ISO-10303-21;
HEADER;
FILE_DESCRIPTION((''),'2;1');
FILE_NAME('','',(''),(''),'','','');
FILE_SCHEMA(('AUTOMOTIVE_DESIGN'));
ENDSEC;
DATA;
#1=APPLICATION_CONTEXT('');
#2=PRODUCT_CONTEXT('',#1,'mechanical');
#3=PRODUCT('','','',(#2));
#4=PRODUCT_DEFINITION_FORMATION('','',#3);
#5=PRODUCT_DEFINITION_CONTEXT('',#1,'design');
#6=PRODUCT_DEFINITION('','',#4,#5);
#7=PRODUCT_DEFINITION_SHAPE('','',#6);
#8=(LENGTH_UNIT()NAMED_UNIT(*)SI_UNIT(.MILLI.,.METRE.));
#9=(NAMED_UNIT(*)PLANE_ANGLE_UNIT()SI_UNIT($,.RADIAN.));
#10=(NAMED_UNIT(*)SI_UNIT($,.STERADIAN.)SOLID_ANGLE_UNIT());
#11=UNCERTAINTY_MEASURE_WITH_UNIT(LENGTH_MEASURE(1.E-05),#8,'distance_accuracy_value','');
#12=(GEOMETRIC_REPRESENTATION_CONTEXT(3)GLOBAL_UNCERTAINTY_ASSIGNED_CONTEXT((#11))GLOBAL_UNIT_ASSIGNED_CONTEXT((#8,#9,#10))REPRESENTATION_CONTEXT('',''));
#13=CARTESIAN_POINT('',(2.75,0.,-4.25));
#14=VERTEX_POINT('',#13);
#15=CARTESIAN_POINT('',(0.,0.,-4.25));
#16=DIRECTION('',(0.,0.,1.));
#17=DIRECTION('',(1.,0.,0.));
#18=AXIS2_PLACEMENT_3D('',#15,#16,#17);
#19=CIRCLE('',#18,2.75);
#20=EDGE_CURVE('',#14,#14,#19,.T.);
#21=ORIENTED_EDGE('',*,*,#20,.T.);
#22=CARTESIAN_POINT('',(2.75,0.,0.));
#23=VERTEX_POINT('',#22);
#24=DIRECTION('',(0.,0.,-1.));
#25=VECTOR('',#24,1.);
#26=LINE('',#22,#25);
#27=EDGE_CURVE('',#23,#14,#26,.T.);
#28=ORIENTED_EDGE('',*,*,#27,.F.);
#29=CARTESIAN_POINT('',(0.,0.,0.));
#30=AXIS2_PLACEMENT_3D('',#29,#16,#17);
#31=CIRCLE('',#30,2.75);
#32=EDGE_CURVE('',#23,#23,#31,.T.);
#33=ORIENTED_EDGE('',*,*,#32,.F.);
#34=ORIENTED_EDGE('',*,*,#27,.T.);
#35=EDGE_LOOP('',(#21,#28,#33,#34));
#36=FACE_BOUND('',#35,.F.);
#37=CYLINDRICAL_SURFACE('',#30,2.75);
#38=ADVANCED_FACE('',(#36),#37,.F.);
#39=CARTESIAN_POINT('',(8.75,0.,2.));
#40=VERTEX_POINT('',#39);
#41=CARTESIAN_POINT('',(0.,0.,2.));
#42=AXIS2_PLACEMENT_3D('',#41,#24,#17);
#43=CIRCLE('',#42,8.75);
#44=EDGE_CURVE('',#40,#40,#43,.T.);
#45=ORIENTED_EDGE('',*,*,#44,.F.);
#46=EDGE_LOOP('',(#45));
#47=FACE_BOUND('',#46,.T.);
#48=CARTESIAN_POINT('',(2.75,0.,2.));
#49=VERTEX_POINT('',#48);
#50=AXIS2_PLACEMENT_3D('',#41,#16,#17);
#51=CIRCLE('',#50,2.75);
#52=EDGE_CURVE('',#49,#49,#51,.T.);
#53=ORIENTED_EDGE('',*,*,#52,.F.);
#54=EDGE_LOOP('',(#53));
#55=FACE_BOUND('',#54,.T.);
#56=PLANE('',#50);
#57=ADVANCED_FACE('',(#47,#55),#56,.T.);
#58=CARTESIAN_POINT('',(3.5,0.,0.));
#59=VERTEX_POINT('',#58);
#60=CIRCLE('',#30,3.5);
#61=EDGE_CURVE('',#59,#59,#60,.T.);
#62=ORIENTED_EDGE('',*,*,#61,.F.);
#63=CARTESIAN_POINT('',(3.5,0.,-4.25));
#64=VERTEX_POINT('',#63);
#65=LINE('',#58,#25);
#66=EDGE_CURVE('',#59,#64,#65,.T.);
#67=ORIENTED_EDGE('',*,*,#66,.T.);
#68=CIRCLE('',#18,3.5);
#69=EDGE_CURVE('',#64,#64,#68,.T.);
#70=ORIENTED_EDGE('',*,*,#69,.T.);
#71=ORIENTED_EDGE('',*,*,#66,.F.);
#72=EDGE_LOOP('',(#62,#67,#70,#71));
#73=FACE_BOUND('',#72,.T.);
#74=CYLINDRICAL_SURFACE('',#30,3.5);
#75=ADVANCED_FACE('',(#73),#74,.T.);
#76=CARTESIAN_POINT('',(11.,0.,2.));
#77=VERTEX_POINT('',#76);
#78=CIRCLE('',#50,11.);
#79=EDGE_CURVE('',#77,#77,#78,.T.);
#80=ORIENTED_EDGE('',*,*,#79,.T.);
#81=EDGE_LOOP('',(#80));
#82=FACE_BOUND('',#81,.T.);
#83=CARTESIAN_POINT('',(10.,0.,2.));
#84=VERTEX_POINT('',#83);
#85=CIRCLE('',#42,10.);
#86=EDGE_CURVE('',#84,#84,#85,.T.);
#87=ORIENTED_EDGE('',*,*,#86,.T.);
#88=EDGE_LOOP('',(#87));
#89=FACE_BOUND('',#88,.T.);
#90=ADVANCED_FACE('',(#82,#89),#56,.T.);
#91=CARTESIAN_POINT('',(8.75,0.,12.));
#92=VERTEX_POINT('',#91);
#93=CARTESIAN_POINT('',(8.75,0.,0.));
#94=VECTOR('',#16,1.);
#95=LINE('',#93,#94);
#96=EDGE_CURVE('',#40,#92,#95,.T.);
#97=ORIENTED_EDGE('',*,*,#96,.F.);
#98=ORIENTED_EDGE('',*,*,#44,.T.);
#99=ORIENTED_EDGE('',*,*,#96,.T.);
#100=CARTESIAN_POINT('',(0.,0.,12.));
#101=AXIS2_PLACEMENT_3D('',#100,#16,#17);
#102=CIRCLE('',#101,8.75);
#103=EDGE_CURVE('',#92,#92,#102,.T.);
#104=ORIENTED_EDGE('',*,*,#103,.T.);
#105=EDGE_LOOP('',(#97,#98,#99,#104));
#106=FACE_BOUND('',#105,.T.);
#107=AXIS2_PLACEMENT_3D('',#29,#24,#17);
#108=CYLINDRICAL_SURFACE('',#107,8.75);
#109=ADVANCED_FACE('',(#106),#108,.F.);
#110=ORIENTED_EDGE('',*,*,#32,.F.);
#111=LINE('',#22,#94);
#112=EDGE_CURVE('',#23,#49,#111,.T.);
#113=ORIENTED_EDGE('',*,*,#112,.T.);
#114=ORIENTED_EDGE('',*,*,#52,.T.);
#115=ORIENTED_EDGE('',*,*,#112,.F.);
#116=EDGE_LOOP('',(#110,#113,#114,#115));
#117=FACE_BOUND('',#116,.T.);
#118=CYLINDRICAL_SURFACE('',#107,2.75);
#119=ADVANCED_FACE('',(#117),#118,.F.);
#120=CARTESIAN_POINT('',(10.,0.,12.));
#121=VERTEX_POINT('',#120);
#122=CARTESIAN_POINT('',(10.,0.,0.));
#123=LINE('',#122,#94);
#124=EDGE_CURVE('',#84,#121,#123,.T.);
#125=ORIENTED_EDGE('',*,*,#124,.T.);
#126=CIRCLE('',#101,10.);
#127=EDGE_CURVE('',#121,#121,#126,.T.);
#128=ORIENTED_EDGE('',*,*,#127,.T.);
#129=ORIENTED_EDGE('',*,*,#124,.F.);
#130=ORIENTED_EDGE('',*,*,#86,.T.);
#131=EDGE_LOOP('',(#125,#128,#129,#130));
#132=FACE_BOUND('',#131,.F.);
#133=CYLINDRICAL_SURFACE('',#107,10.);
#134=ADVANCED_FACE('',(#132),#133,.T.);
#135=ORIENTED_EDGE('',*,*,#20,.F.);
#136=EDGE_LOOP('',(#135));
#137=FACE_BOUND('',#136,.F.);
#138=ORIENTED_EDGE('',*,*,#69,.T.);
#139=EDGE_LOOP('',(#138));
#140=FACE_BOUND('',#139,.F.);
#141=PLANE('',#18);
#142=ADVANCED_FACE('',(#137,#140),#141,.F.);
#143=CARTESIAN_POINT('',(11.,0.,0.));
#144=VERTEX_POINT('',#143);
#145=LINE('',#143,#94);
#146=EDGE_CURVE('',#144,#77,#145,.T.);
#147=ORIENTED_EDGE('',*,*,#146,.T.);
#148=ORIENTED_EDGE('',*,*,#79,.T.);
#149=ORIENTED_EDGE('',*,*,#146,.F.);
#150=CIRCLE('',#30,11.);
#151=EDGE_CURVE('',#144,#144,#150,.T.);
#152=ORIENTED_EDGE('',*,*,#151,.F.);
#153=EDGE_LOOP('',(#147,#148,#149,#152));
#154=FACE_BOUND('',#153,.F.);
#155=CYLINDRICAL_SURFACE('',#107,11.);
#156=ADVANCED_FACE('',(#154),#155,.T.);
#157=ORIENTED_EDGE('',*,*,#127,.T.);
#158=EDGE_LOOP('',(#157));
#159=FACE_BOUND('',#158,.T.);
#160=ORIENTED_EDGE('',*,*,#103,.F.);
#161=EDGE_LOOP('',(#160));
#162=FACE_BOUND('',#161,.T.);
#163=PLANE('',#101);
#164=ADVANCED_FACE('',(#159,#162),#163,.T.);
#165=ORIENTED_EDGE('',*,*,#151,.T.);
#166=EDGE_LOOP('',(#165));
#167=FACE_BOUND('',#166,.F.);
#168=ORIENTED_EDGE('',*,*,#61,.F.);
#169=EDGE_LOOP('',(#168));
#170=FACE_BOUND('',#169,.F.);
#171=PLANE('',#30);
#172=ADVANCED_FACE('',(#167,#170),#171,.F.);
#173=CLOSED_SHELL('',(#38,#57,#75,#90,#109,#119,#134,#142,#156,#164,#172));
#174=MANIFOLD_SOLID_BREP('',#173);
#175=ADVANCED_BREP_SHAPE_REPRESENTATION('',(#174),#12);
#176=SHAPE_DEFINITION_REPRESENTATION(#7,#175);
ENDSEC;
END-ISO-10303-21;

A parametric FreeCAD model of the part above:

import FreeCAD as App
import Part
import Sketcher

doc = App.newDocument("Part")
body = doc.addObject("PartDesign::Body", "Body")

sketch1 = doc.addObject("Sketcher::SketchObject", "Sketch")
body.addObject(sketch1)
sketch1.AttachmentSupport = (doc.XY_Plane, [""])
sketch1.MapMode = "FlatFace"
sketch1.addGeometry([
    Part.Circle(App.Vector(0, 0, 0), App.Vector(0, 0, 1), 11),
    Part.Circle(App.Vector(0, 0, 0), App.Vector(0, 0, 1), 2.8),
], False)
sketch1.addConstraint([
    Sketcher.Constraint("Coincident", 0, 3, -1, 1),
    Sketcher.Constraint("Coincident", 1, 3, -1, 1),
    Sketcher.Constraint("Diameter", 0, 22.0),
    Sketcher.Constraint("Diameter", 1, 5.5),
])
pad1 = doc.addObject("PartDesign::Pad", "Pad")
body.addObject(pad1)
pad1.Profile = sketch1
pad1.Length = 2

sketch2 = doc.addObject("Sketcher::SketchObject", "Sketch001")
body.addObject(sketch2)
sketch2.AttachmentSupport = (doc.XY_Plane, [""])
sketch2.MapMode = "FlatFace"
sketch2.addGeometry([
    Part.Circle(App.Vector(0, 0, 0), App.Vector(0, 0, 1), 3.5),
    Part.Circle(App.Vector(0, 0, 0), App.Vector(0, 0, 1), 2.8),
], False)
sketch2.addConstraint([
    Sketcher.Constraint("Coincident", 0, 3, -1, 1),
    Sketcher.Constraint("Coincident", 1, 3, -1, 1),
    Sketcher.Constraint("Diameter", 0, 7.0),
    Sketcher.Constraint("Diameter", 1, 5.5),
])
pad2 = doc.addObject("PartDesign::Pad", "Pad001")
body.addObject(pad2)
pad2.Profile = sketch2
pad2.Length = 4.25
pad2.Reversed = True

sketch3 = doc.addObject("Sketcher::SketchObject", "Sketch002")
body.addObject(sketch3)
sketch3.AttachmentSupport = (doc.XY_Plane, [""])
sketch3.MapMode = "FlatFace"
sketch3.addGeometry([
    Part.Circle(App.Vector(0, 0, 0), App.Vector(0, 0, 1), 10),
    Part.Circle(App.Vector(0, 0, 0), App.Vector(0, 0, 1), 9),
], False)
sketch3.addConstraint([
    Sketcher.Constraint("Coincident", 0, 3, -1, 1),
    Sketcher.Constraint("Coincident", 1, 3, -1, 1),
    Sketcher.Constraint("Diameter", 0, 20.0),
    Sketcher.Constraint("Diameter", 1, 17.5),
])
pad3 = doc.addObject("PartDesign::Pad", "Pad002")
body.addObject(pad3)
pad3.Profile = sketch3
pad3.Length = 12

doc.recompute()
